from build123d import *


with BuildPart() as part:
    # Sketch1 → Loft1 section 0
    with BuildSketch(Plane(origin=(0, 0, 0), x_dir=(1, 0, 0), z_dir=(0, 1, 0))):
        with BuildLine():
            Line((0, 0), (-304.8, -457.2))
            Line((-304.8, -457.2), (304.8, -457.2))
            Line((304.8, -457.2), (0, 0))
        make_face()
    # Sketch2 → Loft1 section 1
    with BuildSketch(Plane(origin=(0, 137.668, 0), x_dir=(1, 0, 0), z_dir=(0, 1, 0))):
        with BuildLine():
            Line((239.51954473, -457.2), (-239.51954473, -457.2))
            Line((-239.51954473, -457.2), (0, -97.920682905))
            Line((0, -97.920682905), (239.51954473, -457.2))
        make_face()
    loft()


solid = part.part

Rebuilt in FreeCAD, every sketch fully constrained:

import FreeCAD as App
import Part
import Sketcher
from FreeCAD import Vector
Q = App.Units.Quantity


def add_polygon(sketch, points):
    """Adds a closed chain of lines whose ends are joined by coincident constraints."""
    first, n = sketch.GeometryCount, len(points)
    for a, b in zip(points, points[1:] + points[:1]):
        sketch.addGeometry(Part.LineSegment(App.Vector(*a, 0), App.Vector(*b, 0)), False)
    for i in range(n):
        sketch.addConstraint(Sketcher.Constraint("Coincident", first + i, 2, first + (i + 1) % n, 1))

doc = App.newDocument("Part")
body = doc.addObject("PartDesign::Body", "Body")

# Sketch on XZ plane
sketch1 = body.newObject("Sketcher::SketchObject", "Sketch")
sketch1.AttachmentSupport = (doc.getObject("XZ_Plane"), [""])
sketch1.MapMode = "FlatFace"
add_polygon(sketch1, [(0, 0), (-305, 457), (305, 457)])  # lines 0-2
sketch1.addConstraint(Sketcher.Constraint("Horizontal", 1))
sketch1.addConstraint(Sketcher.Constraint("Coincident", 2, 2, -1, 1))
sketch1.addConstraint(Sketcher.Constraint("Equal", 0, 2))
sketch1.addConstraint(Sketcher.Constraint("DistanceX", 1, 1, 1, 2, Q("24 in")))
sketch1.addConstraint(Sketcher.Constraint("DistanceY", -1, 1, 0, 2, Q("18 in")))

# Sketch on XZ plane
sketch2 = body.newObject("Sketcher::SketchObject", "Sketch001")
sketch2.AttachmentSupport = (doc.getObject("XZ_Plane"), [""])
sketch2.MapMode = "FlatFace"
sketch2.AttachmentOffset = App.Placement(Vector(0, 0, -5.42 * 25.4), App.Rotation())
add_polygon(sketch2, [(-240, 457), (240, 457), (0, 98)])  # lines 0-2
sketch2.addConstraint(Sketcher.Constraint("Horizontal", 0))
sketch2.addConstraint(Sketcher.Constraint("PointOnObject", 1, 2, -2))
sketch2.addConstraint(Sketcher.Constraint("Equal", 1, 2))
sketch2.addConstraint(Sketcher.Constraint("Distance", 1, Q("17 in")))
sketch2.addConstraint(Sketcher.Constraint("DistanceY", -1, 1, 0, 2, Q("18 in")))
sketch2.addConstraint(Sketcher.Constraint("DistanceX", 0, 1, 0, 2, 479.039089))

additiveloft = body.newObject("PartDesign::AdditiveLoft", "AdditiveLoft")
additiveloft.Profile = sketch1
additiveloft.Sections = [sketch2]

doc.recompute()
